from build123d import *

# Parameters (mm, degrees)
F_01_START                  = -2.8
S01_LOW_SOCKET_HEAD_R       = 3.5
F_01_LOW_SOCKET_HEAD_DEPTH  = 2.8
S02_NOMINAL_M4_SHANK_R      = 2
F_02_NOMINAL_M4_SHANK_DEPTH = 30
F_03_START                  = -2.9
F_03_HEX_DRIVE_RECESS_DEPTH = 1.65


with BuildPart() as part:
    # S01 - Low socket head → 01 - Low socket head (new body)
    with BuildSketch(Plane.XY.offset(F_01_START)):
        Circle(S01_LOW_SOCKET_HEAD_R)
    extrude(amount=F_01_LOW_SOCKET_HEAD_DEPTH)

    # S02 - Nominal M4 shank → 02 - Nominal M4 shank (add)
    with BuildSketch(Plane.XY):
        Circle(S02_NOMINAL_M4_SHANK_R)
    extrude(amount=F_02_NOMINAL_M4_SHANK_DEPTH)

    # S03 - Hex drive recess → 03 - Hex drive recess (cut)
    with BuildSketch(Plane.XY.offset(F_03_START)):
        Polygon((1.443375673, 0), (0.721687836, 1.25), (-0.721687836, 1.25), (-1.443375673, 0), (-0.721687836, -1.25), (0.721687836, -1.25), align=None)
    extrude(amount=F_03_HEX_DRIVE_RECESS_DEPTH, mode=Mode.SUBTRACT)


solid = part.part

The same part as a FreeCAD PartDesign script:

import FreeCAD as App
import Part
import Sketcher
Q = App.Units.Quantity

doc = App.newDocument("Part")
body = doc.addObject("PartDesign::Body", "Body")

# Sketch on XY plane
sketch1 = doc.addObject("Sketcher::SketchObject", "Sketch")
body.addObject(sketch1)
sketch1.AttachmentSupport = (doc.XY_Plane, [""])
sketch1.MapMode = "FlatFace"
sketch1.AttachmentOffset = App.Placement(App.Vector(0, 0, -2.8), App.Rotation())
sketch1.addGeometry(Part.Circle(App.Vector(0, 0, 0), App.Vector(0, 0, 1), 3.5), False)
sketch1.addConstraint([
    Sketcher.Constraint("Coincident", 0, 3, -1, 1),
    Sketcher.Constraint("Diameter", 0, Q("7 mm")),
])
pad1 = doc.addObject("PartDesign::Pad", "Pad")
body.addObject(pad1)
pad1.Profile = sketch1
pad1.Length = 2.8

# Sketch on XY plane
sketch2 = doc.addObject("Sketcher::SketchObject", "Sketch001")
body.addObject(sketch2)
sketch2.AttachmentSupport = (doc.XY_Plane, [""])
sketch2.MapMode = "FlatFace"
sketch2.addGeometry(Part.Circle(App.Vector(0, 0, 0), App.Vector(0, 0, 1), 2), False)
sketch2.addConstraint([
    Sketcher.Constraint("Coincident", 0, 3, -1, 1),
    Sketcher.Constraint("Diameter", 0, Q("4 mm")),
])
pad2 = doc.addObject("PartDesign::Pad", "Pad001")
body.addObject(pad2)
pad2.Profile = sketch2
pad2.Length = 30

# Sketch on XY plane
sketch3 = doc.addObject("Sketcher::SketchObject", "Sketch002")
body.addObject(sketch3)
sketch3.AttachmentSupport = (doc.XY_Plane, [""])
sketch3.MapMode = "FlatFace"
sketch3.AttachmentOffset = App.Placement(App.Vector(0, 0, -2.9), App.Rotation())
sketch3.addGeometry([
    Part.LineSegment(App.Vector(1.4, 0, 0), App.Vector(0.7, 1.2, 0)),  # 0
    Part.LineSegment(App.Vector(0.7, 1.2, 0), App.Vector(-0.7, 1.2, 0)),  # 1
    Part.LineSegment(App.Vector(-0.7, 1.2, 0), App.Vector(-1.4, 0, 0)),  # 2
    Part.LineSegment(App.Vector(-1.4, 0, 0), App.Vector(-0.7, -1.2, 0)),  # 3
    Part.LineSegment(App.Vector(-0.7, -1.2, 0), App.Vector(0.7, -1.2, 0)),  # 4
    Part.LineSegment(App.Vector(0.7, -1.2, 0), App.Vector(1.4, 0, 0)),  # 5
], False)
sketch3.addConstraint([
    Sketcher.Constraint("Coincident", 0, 2, 1, 1),
    Sketcher.Constraint("Coincident", 1, 2, 2, 1),
    Sketcher.Constraint("Coincident", 2, 2, 3, 1),
    Sketcher.Constraint("Coincident", 3, 2, 4, 1),
    Sketcher.Constraint("Coincident", 4, 2, 5, 1),
    Sketcher.Constraint("Coincident", 5, 2, 0, 1),
    Sketcher.Constraint("Horizontal", 1),
    Sketcher.Constraint("Horizontal", 4),
    Sketcher.Constraint("Symmetric", 0, 2, 3, 2, -1, 1),
    Sketcher.Constraint("Symmetric", 2, 2, 5, 2, -1, 1),
    Sketcher.Constraint("PointOnObject", 2, 2, -1),
    Sketcher.Constraint("Parallel", 2, 5),
    Sketcher.Constraint("Vertical", 1, 2, 3, 2),
    Sketcher.Constraint("Angle", 0, Q("120 deg")),
    Sketcher.Constraint("DistanceY", 3, 2, 1, 2, Q("2.5 mm")),
    Sketcher.Constraint("DistanceX", 1, 2, 1, 1, Q("1.443376 mm")),
])
pocket1 = doc.addObject("PartDesign::Pocket", "Pocket")
body.addObject(pocket1)
pocket1.Profile = sketch3
pocket1.Length = 1.65
pocket1.Reversed = True

doc.recompute()
